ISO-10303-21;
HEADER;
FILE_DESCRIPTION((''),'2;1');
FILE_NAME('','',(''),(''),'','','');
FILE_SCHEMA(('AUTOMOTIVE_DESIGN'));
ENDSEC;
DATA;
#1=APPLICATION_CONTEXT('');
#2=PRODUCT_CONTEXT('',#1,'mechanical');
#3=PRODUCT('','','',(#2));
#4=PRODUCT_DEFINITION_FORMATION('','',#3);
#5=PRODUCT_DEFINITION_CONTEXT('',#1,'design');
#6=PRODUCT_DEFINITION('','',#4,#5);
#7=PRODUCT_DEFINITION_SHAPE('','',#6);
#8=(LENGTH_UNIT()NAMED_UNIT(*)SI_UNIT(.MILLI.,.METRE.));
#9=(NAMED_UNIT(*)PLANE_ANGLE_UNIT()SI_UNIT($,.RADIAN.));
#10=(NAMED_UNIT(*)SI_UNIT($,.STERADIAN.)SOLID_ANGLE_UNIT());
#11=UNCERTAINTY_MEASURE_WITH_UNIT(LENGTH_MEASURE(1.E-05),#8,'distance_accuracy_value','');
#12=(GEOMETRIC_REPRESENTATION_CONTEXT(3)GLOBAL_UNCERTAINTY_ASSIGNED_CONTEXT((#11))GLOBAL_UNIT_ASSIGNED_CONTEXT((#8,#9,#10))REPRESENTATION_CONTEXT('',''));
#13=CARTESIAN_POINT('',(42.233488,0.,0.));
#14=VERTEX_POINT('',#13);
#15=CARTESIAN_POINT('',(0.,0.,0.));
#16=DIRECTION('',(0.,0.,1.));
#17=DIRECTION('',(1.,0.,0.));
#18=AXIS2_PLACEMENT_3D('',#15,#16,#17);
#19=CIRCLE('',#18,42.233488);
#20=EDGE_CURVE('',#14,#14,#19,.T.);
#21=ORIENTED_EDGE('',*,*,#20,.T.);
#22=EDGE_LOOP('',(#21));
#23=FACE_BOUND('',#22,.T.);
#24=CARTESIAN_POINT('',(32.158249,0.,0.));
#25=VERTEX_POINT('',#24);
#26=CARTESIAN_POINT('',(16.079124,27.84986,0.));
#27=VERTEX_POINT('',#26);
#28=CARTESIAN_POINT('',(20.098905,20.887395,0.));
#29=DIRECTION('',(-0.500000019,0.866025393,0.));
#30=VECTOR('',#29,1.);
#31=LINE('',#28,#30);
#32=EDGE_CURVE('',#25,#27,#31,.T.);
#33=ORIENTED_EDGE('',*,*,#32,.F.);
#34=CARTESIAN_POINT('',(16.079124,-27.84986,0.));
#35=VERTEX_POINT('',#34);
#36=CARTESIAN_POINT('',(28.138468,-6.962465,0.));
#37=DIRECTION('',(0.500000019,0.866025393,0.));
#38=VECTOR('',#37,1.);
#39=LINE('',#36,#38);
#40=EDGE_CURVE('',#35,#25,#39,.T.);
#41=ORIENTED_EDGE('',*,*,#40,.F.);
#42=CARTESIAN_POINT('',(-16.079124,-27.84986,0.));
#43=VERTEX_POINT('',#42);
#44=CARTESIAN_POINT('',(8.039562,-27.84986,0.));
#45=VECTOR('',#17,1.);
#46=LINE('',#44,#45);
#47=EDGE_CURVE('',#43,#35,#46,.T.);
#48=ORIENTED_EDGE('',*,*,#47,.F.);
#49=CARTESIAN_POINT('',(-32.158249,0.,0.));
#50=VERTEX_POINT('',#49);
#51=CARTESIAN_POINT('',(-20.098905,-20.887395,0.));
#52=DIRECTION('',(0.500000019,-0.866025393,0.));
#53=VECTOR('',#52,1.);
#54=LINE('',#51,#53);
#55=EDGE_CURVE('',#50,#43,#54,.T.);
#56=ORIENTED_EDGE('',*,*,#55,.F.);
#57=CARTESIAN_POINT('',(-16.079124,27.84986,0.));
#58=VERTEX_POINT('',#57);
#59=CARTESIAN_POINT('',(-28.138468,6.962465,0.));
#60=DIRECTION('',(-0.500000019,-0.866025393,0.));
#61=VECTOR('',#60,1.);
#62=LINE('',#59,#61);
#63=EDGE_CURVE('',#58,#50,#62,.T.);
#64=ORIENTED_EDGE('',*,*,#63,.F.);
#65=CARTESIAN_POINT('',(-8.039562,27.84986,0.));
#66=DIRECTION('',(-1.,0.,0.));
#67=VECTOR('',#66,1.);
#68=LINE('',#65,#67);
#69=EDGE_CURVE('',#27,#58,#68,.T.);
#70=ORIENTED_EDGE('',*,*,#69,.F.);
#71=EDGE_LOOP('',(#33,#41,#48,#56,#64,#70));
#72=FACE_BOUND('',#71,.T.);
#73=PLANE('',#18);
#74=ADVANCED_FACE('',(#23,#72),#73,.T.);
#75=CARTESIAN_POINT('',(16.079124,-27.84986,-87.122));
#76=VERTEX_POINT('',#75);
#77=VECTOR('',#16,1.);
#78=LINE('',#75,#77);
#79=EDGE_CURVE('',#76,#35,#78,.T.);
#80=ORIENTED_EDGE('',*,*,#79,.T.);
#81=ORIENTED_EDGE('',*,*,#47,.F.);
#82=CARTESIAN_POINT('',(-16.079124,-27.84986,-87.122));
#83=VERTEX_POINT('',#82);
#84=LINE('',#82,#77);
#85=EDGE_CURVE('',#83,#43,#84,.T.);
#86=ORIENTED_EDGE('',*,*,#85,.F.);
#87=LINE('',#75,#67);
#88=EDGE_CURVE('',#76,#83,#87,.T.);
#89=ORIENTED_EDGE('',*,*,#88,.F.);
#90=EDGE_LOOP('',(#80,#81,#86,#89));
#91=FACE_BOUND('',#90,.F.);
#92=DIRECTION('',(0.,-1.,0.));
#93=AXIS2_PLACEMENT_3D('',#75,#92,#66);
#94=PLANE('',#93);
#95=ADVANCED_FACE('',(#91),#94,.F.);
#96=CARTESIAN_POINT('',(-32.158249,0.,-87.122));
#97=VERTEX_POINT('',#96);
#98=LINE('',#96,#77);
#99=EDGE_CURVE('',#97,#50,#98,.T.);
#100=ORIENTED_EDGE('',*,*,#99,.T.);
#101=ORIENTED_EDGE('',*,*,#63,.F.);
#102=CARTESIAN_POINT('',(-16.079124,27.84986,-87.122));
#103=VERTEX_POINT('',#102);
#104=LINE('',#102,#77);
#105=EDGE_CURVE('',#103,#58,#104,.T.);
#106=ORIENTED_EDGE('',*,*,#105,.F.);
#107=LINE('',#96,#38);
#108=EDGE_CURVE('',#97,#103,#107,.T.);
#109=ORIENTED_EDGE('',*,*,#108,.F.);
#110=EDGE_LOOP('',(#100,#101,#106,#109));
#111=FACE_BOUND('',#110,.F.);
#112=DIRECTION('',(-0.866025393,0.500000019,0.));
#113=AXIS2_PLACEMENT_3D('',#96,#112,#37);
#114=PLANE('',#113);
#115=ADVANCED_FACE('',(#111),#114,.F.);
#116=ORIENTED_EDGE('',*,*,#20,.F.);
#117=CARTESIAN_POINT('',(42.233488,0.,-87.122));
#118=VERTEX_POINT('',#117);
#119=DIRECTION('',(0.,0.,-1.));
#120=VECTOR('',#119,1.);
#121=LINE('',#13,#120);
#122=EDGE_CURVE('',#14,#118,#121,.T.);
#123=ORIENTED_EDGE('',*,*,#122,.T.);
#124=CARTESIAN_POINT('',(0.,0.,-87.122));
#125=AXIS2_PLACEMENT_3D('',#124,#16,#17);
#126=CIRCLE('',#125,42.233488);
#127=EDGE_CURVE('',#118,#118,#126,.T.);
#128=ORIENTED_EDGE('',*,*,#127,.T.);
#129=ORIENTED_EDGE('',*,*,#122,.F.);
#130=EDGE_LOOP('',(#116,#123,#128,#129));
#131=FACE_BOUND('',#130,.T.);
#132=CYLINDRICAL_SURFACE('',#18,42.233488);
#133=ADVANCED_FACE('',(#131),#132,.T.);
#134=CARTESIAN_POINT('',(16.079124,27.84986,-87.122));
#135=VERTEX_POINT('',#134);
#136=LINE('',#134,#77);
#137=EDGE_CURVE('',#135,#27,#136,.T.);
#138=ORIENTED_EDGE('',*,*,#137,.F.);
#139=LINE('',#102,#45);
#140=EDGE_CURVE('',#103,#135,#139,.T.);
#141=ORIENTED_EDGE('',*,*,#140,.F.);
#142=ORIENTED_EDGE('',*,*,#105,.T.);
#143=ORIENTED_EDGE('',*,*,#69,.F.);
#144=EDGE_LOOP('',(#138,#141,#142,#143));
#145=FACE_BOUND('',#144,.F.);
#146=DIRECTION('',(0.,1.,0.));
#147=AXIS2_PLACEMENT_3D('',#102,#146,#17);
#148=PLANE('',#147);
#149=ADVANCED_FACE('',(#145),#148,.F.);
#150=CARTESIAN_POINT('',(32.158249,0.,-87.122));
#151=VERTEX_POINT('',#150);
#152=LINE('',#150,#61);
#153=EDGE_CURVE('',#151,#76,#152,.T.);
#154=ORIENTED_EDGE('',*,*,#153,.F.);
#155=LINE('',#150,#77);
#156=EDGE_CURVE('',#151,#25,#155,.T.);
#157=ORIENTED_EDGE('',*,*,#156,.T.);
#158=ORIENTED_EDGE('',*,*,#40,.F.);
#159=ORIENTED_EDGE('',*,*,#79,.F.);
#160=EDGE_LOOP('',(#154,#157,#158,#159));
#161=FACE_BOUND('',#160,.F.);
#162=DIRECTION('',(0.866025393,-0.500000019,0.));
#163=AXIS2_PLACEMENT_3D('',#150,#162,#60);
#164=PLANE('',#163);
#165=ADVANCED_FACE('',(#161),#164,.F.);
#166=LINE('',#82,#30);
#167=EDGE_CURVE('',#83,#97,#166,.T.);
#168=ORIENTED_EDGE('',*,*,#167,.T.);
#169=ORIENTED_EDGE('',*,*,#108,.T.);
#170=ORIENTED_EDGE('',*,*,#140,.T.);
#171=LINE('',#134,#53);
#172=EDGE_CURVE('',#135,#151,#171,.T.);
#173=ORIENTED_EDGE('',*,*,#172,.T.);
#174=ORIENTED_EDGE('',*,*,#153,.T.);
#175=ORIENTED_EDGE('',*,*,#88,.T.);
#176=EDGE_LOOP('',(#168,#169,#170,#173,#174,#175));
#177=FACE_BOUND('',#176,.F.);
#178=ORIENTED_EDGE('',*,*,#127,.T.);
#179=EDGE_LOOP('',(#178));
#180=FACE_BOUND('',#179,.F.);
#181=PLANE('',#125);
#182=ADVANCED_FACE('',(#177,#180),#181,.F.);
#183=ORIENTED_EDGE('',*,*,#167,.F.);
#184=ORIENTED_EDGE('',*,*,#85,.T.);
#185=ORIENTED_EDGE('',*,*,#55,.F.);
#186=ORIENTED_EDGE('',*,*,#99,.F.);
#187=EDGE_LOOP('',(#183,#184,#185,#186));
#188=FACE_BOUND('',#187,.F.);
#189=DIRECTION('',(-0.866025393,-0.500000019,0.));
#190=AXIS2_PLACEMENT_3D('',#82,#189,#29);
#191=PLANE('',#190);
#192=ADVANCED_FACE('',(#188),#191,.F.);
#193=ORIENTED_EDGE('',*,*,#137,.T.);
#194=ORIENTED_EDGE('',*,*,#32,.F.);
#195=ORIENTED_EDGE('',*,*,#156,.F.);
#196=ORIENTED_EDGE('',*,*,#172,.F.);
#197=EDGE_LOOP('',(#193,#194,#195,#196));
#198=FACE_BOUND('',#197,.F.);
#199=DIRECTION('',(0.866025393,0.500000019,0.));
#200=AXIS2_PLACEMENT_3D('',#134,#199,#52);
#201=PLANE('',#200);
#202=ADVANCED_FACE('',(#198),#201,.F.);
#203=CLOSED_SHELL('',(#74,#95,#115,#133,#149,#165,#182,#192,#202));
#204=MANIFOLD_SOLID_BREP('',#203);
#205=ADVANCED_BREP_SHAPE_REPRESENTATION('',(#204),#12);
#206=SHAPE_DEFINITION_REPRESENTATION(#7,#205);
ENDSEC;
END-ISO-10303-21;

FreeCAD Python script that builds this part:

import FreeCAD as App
import Part
import Sketcher
Q = App.Units.Quantity

doc = App.newDocument("Part")
body = doc.addObject("PartDesign::Body", "Body")

# Sketch on XY plane
sketch1 = body.newObject("Sketcher::SketchObject", "Sketch")
sketch1.AttachmentSupport = (doc.getObject("XY_Plane"), [""])
sketch1.MapMode = "FlatFace"
sketch1.addGeometry(Part.Circle(App.Vector(0, 0, 0), App.Vector(0, 0, 1), 42), False)
sketch1.addConstraint([
    Sketcher.Constraint("Coincident", 0, 3, -1, 1),
    Sketcher.Constraint("Diameter", 0, 84.466976),
])
pad1 = body.newObject("PartDesign::Pad", "Pad")
pad1.Profile = sketch1
pad1.Length = Q("3.43 in")
pad1.Reversed = True

# Sketch on XY plane
sketch2 = body.newObject("Sketcher::SketchObject", "Sketch001")
sketch2.AttachmentSupport = (doc.getObject("XY_Plane"), [""])
sketch2.MapMode = "FlatFace"
sketch2.AttachmentOffset = App.Placement(App.Vector(0, 0, -3.43 * 25.4), App.Rotation())
sketch2.addGeometry([
    Part.LineSegment(App.Vector(16, -28, 0), App.Vector(-16, -28, 0)),  # 0
    Part.LineSegment(App.Vector(-16, -28, 0), App.Vector(-32, 0, 0)),  # 1
    Part.LineSegment(App.Vector(-32, 0, 0), App.Vector(-16, 28, 0)),  # 2
    Part.LineSegment(App.Vector(-16, 28, 0), App.Vector(16, 28, 0)),  # 3
    Part.LineSegment(App.Vector(16, 28, 0), App.Vector(32, 0, 0)),  # 4
    Part.LineSegment(App.Vector(32, 0, 0), App.Vector(16, -28, 0)),  # 5
], False)
sketch2.addConstraint([
    Sketcher.Constraint("Coincident", 0, 2, 1, 1),
    Sketcher.Constraint("Coincident", 1, 2, 2, 1),
    Sketcher.Constraint("Coincident", 2, 2, 3, 1),
    Sketcher.Constraint("Coincident", 3, 2, 4, 1),
    Sketcher.Constraint("Coincident", 4, 2, 5, 1),
    Sketcher.Constraint("Coincident", 5, 2, 0, 1),
    Sketcher.Constraint("Horizontal", 0),
    Sketcher.Constraint("Horizontal", 3),
    Sketcher.Constraint("Symmetric", 0, 2, 3, 2, -1, 1),
    Sketcher.Constraint("Symmetric", 1, 2, 4, 2, -1, 1),
    Sketcher.Constraint("PointOnObject", 1, 2, -1),
    Sketcher.Constraint("Parallel", 2, 5),
    Sketcher.Constraint("Vertical", 0, 2, 2, 2),
    Sketcher.Constraint("Angle", 1, Q("120.000001 deg")),
    Sketcher.Constraint("Distance", 1, 32.158249),
    Sketcher.Constraint("DistanceX", 0, 2, 0, 1, 32.158248),
])
pocket1 = body.newObject("PartDesign::Pocket", "Pocket")
pocket1.Profile = sketch2
pocket1.Length = Q("6.53 in")
pocket1.Reversed = True

doc.recompute()
